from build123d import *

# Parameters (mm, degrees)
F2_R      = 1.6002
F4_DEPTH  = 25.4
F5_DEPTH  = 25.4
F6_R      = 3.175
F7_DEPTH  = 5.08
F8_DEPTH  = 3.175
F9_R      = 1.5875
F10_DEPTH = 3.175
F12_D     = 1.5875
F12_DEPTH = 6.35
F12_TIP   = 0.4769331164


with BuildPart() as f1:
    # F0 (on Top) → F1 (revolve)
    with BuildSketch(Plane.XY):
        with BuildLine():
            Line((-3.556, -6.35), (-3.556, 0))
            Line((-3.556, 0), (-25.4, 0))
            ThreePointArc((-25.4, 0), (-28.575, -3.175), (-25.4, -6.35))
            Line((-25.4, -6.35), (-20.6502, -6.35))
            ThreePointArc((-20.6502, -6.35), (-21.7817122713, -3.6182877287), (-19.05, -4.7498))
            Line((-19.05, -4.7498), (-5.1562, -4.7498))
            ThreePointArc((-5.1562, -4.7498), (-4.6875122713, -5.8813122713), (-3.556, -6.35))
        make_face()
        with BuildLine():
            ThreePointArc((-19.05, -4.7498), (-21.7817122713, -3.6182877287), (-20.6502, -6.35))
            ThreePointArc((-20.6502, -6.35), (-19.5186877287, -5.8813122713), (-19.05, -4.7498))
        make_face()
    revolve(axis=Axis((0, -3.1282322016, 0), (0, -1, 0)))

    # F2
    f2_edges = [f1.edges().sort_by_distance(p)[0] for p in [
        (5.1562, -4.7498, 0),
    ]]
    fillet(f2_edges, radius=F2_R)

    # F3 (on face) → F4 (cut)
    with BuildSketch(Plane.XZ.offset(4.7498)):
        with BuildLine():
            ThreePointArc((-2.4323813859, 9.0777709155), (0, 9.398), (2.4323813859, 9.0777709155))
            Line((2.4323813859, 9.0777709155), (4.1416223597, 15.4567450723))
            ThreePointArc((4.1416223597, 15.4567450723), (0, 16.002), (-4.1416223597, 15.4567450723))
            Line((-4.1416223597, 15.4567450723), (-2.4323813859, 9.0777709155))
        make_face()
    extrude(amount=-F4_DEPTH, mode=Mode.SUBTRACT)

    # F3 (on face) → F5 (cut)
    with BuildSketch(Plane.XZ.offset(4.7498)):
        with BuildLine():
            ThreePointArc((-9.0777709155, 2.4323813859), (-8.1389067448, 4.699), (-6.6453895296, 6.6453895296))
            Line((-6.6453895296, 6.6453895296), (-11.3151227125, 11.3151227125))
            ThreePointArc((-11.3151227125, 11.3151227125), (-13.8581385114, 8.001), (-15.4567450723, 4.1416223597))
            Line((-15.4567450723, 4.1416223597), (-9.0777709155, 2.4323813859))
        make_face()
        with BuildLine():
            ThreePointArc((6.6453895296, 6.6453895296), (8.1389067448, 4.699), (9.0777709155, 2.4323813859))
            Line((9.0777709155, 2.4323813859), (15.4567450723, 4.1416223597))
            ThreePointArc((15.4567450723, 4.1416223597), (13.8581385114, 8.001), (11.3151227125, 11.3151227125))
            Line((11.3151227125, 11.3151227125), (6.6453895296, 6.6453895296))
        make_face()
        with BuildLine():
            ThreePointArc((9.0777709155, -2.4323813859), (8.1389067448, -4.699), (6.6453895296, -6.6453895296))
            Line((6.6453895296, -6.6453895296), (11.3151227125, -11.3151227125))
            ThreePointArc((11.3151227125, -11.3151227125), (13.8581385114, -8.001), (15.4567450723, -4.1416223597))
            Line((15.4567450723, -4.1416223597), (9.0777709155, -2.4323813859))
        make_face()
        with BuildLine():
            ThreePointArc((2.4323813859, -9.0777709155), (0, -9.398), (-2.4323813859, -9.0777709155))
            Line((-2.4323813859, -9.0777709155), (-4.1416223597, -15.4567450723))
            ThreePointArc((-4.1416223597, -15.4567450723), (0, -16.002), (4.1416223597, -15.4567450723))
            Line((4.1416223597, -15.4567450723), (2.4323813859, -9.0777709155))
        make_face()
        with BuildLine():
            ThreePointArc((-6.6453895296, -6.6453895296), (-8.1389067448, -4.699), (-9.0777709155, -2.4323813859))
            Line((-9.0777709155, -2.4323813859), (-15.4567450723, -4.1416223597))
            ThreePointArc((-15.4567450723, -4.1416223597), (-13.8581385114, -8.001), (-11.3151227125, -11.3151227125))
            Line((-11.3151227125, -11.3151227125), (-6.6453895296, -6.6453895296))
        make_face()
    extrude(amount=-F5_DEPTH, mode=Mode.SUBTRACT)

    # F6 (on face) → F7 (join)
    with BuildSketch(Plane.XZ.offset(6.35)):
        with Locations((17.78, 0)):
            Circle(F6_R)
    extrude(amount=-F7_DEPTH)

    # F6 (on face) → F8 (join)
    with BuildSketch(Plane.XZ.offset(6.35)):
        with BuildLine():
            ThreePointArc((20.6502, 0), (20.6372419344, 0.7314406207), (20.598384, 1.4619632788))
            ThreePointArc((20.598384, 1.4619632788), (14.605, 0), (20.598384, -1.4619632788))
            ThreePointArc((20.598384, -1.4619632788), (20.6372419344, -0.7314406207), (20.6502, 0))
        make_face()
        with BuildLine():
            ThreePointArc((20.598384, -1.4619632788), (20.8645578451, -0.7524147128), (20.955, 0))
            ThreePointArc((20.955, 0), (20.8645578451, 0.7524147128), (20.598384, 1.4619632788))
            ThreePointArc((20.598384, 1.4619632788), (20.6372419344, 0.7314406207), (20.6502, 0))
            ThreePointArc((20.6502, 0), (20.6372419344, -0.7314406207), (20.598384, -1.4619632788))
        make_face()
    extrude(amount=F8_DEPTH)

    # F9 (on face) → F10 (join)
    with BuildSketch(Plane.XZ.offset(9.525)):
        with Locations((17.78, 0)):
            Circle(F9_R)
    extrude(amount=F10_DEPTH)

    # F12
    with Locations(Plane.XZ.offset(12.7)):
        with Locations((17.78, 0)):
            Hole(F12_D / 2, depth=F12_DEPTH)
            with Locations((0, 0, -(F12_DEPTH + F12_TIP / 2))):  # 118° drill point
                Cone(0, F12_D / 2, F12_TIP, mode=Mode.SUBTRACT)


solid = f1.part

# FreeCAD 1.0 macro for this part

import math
import FreeCAD as App
import Part
import Sketcher

V = App.Vector
Q = App.Units.Quantity


def edges_at(feature, points):
    """Names of the edges that pass closest to the given points."""
    edges = feature.Shape.Edges
    near = lambda p: min(range(len(edges)), key=lambda i: edges[i].distToShape(Part.Vertex(*p))[0])
    return sorted({f"Edge{near(p) + 1}" for p in points})

doc = App.newDocument("Part")
body = doc.addObject("PartDesign::Body", "Body")

sketch1 = doc.addObject("Sketcher::SketchObject", "Sketch")
body.addObject(sketch1)
sketch1.AttachmentSupport = (doc.XY_Plane, [""])
sketch1.MapMode = "FlatFace"
sketch1.addGeometry([
    Part.LineSegment(V(-3.6, -6.3, 0), V(-3.6, 0, 0)),
    Part.LineSegment(V(-3.6, 0, 0), V(-25.4, 0, 0)),
    Part.ArcOfCircle(Part.Circle(V(-25.4, -3.2, 0), V(0, 0, 1), 3.2), math.radians(90), math.radians(270)),
    Part.LineSegment(V(-25.4, -6.3, 0), V(-20.7, -6.3, 0)),
    Part.ArcOfCircle(Part.Circle(V(-20.7, -4.7, 0), V(0, 0, 1), 1.6), math.radians(-90), math.radians(0)),
    Part.LineSegment(V(-19.1, -4.7, 0), V(-5.2, -4.7, 0)),
    Part.ArcOfCircle(Part.Circle(V(-3.6, -4.7, 0), V(0, 0, 1), 1.6), math.radians(180), math.radians(270)),
], False)
sketch1.addConstraint([
    Sketcher.Constraint("Coincident", 0, 2, 1, 1),
    Sketcher.Constraint("Tangent", 1, 2, 2, 1),
    Sketcher.Constraint("Tangent", 2, 2, 3, 1),
    Sketcher.Constraint("Tangent", 3, 2, 4, 1),
    Sketcher.Constraint("Coincident", 4, 2, 5, 1),
    Sketcher.Constraint("Coincident", 5, 2, 6, 1),
    Sketcher.Constraint("Coincident", 6, 2, 0, 1),
    Sketcher.Constraint("Vertical", 0),
    Sketcher.Constraint("Horizontal", 1),
    Sketcher.Constraint("Horizontal", 3),
    Sketcher.Constraint("Horizontal", 5),
    Sketcher.Constraint("Equal", 4, 6),
    Sketcher.Constraint("PointOnObject", 0, 2, -1),
    Sketcher.Constraint("Horizontal", 4, 3, 6, 3),
    Sketcher.Constraint("Horizontal", 6, 3, 4, 2),
    Sketcher.Constraint("Vertical", 6, 3, 0, 2),
    Sketcher.Constraint("DistanceX", 2, 3, -1, 1, Q("1 in")),
    Sketcher.Constraint("Radius", 2, Q("0.125 in")),
    Sketcher.Constraint("Radius", 4, Q("0.063 in")),
    Sketcher.Constraint("DistanceX", 1, 2, 1, 1, Q("0.86 in")),
    Sketcher.Constraint("DistanceX", 3, 1, 3, 2, Q("0.187 in")),
])
revolution = doc.addObject("PartDesign::Revolution", "Revolution")
body.addObject(revolution)
revolution.Profile = sketch1
revolution.ReferenceAxis = (sketch1, ["V_Axis"])
revolution.Angle = 360
doc.recompute()

fillet = doc.addObject("PartDesign::Fillet", "Fillet")
body.addObject(fillet)
fillet.Base = (revolution, edges_at(revolution, [(5.156, -4.75, 0)]))
fillet.Radius = Q("0.063 in")

sketch2 = doc.addObject("Sketcher::SketchObject", "Sketch001")
body.addObject(sketch2)
sketch2.AttachmentSupport = (doc.XZ_Plane, [""])
sketch2.MapMode = "FlatFace"
sketch2.AttachmentOffset = App.Placement(V(0, 0, 0.187 * 25.4), App.Rotation())
sketch2.addGeometry([
    Part.ArcOfCircle(Part.Circle(V(0, 0, 0), V(0, 0, 1), 9.4), math.radians(75), math.radians(105)),
    Part.LineSegment(V(2.4, 9.1, 0), V(4.1, 15.5, 0)),
    Part.ArcOfCircle(Part.Circle(V(0, 0, 0), V(0, 0, 1), 16), math.radians(75), math.radians(105)),
    Part.LineSegment(V(-4.1, 15.5, 0), V(-2.4, 9.1, 0)),
], False)
sketch2.addConstraint([
    Sketcher.Constraint("Coincident", 0, 1, 1, 1),
    Sketcher.Constraint("Coincident", 1, 2, 2, 1),
    Sketcher.Constraint("Coincident", 2, 2, 3, 1),
    Sketcher.Constraint("Coincident", 3, 2, 0, 2),
    Sketcher.Constraint("Coincident", 0, 3, -1, 1),
    Sketcher.Constraint("Coincident", 2, 3, -1, 1),
    Sketcher.Constraint("Horizontal", 1, 2, 2, 2),
    Sketcher.Constraint("Horizontal", 0, 1, 3, 2),
    Sketcher.Constraint("Radius", 0, Q("0.37 in")),
    Sketcher.Constraint("Radius", 2, Q("0.63 in")),
    Sketcher.Constraint("Angle", 1, Q("75 deg")),
    Sketcher.Constraint("DistanceX", -1, 1, 0, 1, Q("2.432381 mm")),
])
pocket1 = doc.addObject("PartDesign::Pocket", "Pocket")
body.addObject(pocket1)
pocket1.Profile = sketch2
pocket1.Length = Q("1 in")

sketch3 = doc.addObject("Sketcher::SketchObject", "Sketch002")
body.addObject(sketch3)
sketch3.AttachmentSupport = (doc.XZ_Plane, [""])
sketch3.MapMode = "FlatFace"
sketch3.AttachmentOffset = App.Placement(V(0, 0, 0.187 * 25.4), App.Rotation())
sketch3.addGeometry([
    Part.ArcOfCircle(Part.Circle(V(0, 0, 0), V(0, 0, 1), 9.4), math.radians(135), math.radians(165)),
    Part.LineSegment(V(-6.6, 6.6, 0), V(-11.3, 11.3, 0)),
    Part.ArcOfCircle(Part.Circle(V(0, 0, 0), V(0, 0, 1), 16), math.radians(135), math.radians(165)),
    Part.LineSegment(V(-15.5, 4.1, 0), V(-9.1, 2.4, 0)),
    Part.ArcOfCircle(Part.Circle(V(0, 0, 0), V(0, 0, 1), 9.4), math.radians(15), math.radians(45)),
    Part.LineSegment(V(9.1, 2.4, 0), V(15.5, 4.1, 0)),
    Part.ArcOfCircle(Part.Circle(V(0, 0, 0), V(0, 0, 1), 16), math.radians(15), math.radians(45)),
    Part.LineSegment(V(11.3, 11.3, 0), V(6.6, 6.6, 0)),
    Part.ArcOfCircle(Part.Circle(V(0, 0, 0), V(0, 0, 1), 9.4), math.radians(-45), math.radians(-15)),
    Part.LineSegment(V(6.6, -6.6, 0), V(11.3, -11.3, 0)),
    Part.ArcOfCircle(Part.Circle(V(0, 0, 0), V(0, 0, 1), 16), math.radians(-45), math.radians(-15)),
    Part.LineSegment(V(15.5, -4.1, 0), V(9.1, -2.4, 0)),
    Part.ArcOfCircle(Part.Circle(V(0, 0, 0), V(0, 0, 1), 9.4), math.radians(-105), math.radians(-75)),
    Part.LineSegment(V(-2.4, -9.1, 0), V(-4.1, -15.5, 0)),
    Part.ArcOfCircle(Part.Circle(V(0, 0, 0), V(0, 0, 1), 16), math.radians(-105), math.radians(-75)),
    Part.LineSegment(V(4.1, -15.5, 0), V(2.4, -9.1, 0)),
    Part.ArcOfCircle(Part.Circle(V(0, 0, 0), V(0, 0, 1), 9.4), math.radians(-165), math.radians(-135)),
    Part.LineSegment(V(-9.1, -2.4, 0), V(-15.5, -4.1, 0)),
    Part.ArcOfCircle(Part.Circle(V(0, 0, 0), V(0, 0, 1), 16), math.radians(-165), math.radians(-135)),
    Part.LineSegment(V(-11.3, -11.3, 0), V(-6.6, -6.6, 0)),
], False)
sketch3.addConstraint([
    Sketcher.Constraint("Coincident", 0, 1, 1, 1),
    Sketcher.Constraint("Coincident", 1, 2, 2, 1),
    Sketcher.Constraint("Coincident", 2, 2, 3, 1),
    Sketcher.Constraint("Coincident", 3, 2, 0, 2),
    Sketcher.Constraint("Coincident", 4, 1, 5, 1),
    Sketcher.Constraint("Coincident", 5, 2, 6, 1),
    Sketcher.Constraint("Coincident", 6, 2, 7, 1),
    Sketcher.Constraint("Coincident", 7, 2, 4, 2),
    Sketcher.Constraint("Coincident", 8, 1, 9, 1),
    Sketcher.Constraint("Coincident", 9, 2, 10, 1),
    Sketcher.Constraint("Coincident", 10, 2, 11, 1),
    Sketcher.Constraint("Coincident", 11, 2, 8, 2),
    Sketcher.Constraint("Coincident", 12, 1, 13, 1),
    Sketcher.Constraint("Coincident", 13, 2, 14, 1),
    Sketcher.Constraint("Coincident", 14, 2, 15, 1),
    Sketcher.Constraint("Coincident", 15, 2, 12, 2),
    Sketcher.Constraint("Coincident", 16, 1, 17, 1),
    Sketcher.Constraint("Coincident", 17, 2, 18, 1),
    Sketcher.Constraint("Coincident", 18, 2, 19, 1),
    Sketcher.Constraint("Coincident", 19, 2, 16, 2),
    Sketcher.Constraint("Coincident", 0, 3, -1, 1),
    Sketcher.Constraint("Coincident", 2, 3, -1, 1),
    Sketcher.Constraint("Coincident", 4, 3, -1, 1),
    Sketcher.Constraint("Coincident", 6, 3, -1, 1),
    Sketcher.Constraint("Coincident", 8, 3, -1, 1),
    Sketcher.Constraint("Coincident", 10, 3, -1, 1),
    Sketcher.Constraint("Coincident", 12, 3, -1, 1),
    Sketcher.Constraint("Coincident", 14, 3, -1, 1),
    Sketcher.Constraint("Coincident", 16, 3, -1, 1),
    Sketcher.Constraint("Coincident", 18, 3, -1, 1),
    Sketcher.Constraint("Equal", 0, 4),
    Sketcher.Constraint("Equal", 2, 6),
    Sketcher.Constraint("Equal", 4, 8),
    Sketcher.Constraint("Equal", 6, 10),
    Sketcher.Constraint("Equal", 8, 12),
    Sketcher.Constraint("Equal", 10, 14),
    Sketcher.Constraint("Equal", 12, 16),
    Sketcher.Constraint("Equal", 14, 18),
    Sketcher.Constraint("Perpendicular", 1, 7),
    Sketcher.Constraint("Perpendicular", 7, 9),
    Sketcher.Constraint("Parallel", 3, 11),
    Sketcher.Constraint("Perpendicular", 11, 13),
    Sketcher.Constraint("Perpendicular", 5, 15),
    Sketcher.Constraint("Perpendicular", 15, 17),
    Sketcher.Constraint("Perpendicular", 9, 19),
    Sketcher.Constraint("Horizontal", 3, 2, 4, 1),
    Sketcher.Constraint("Horizontal", 2, 2, 5, 2),
    Sketcher.Constraint("Horizontal", 1, 2, 6, 2),
    Sketcher.Constraint("Horizontal", 0, 1, 7, 2),
    Sketcher.Constraint("Horizontal", 13, 2, 14, 2),
    Sketcher.Constraint("Horizontal", 11, 2, 16, 1),
    Sketcher.Constraint("Horizontal", 9, 2, 18, 2),
    Sketcher.Constraint("Vertical", 7, 2, 8, 1),
    Sketcher.Constraint("Vertical", 5, 2, 10, 2),
    Sketcher.Constraint("Radius", 0, Q("0.37 in")),
    Sketcher.Constraint("Radius", 2, Q("0.63 in")),
    Sketcher.Constraint("Angle", 3, Q("-15 deg")),
    Sketcher.Constraint("DistanceY", 2, 2, 1, 2, Q("7.1735 mm")),
    Sketcher.Constraint("DistanceX", 14, 2, 9, 2, Q("7.1735 mm")),
    Sketcher.Constraint("DistanceX", 0, 1, -1, 1, Q("6.64539 mm")),
])
pocket2 = doc.addObject("PartDesign::Pocket", "Pocket001")
body.addObject(pocket2)
pocket2.Profile = sketch3
pocket2.Length = Q("1 in")

sketch4 = doc.addObject("Sketcher::SketchObject", "Sketch003")
body.addObject(sketch4)
sketch4.AttachmentSupport = (doc.XZ_Plane, [""])
sketch4.MapMode = "FlatFace"
sketch4.AttachmentOffset = App.Placement(V(0, 0, 0.25 * 25.4), App.Rotation())
sketch4.addGeometry(Part.Circle(V(17.8, 0, 0), V(0, 0, 1), 3.2), False)
sketch4.addConstraint([
    Sketcher.Constraint("PointOnObject", 0, 3, -1),
    Sketcher.Constraint("Diameter", 0, Q("0.25 in")),
    Sketcher.Constraint("DistanceX", -1, 1, 0, 3, Q("0.7 in")),
])
pad1 = doc.addObject("PartDesign::Pad", "Pad")
body.addObject(pad1)
pad1.Profile = sketch4
pad1.Length = Q("0.2 in")
pad1.Reversed = True

sketch5 = doc.addObject("Sketcher::SketchObject", "Sketch004")
body.addObject(sketch5)
sketch5.AttachmentSupport = (doc.XZ_Plane, [""])
sketch5.MapMode = "FlatFace"
sketch5.AttachmentOffset = App.Placement(V(0, 0, 0.25 * 25.4), App.Rotation())
sketch5.addGeometry([
    Part.ArcOfCircle(Part.Circle(V(17.8, 0, 0), V(0, 0, 1), 3.2), math.radians(27), math.radians(333)),
    Part.ArcOfCircle(Part.Circle(V(17.8, 0, 0), V(0, 0, 1), 3.2), math.radians(-27), math.radians(0)),
    Part.ArcOfCircle(Part.Circle(V(17.8, 0, 0), V(0, 0, 1), 3.2), math.radians(0), math.radians(27)),
], False)
sketch5.addConstraint([
    Sketcher.Constraint("Tangent", 0, 2, 1, 1),
    Sketcher.Constraint("Tangent", 1, 2, 2, 1),
    Sketcher.Constraint("Tangent", 2, 2, 0, 1),
    Sketcher.Constraint("Symmetric", 0, 2, 2, 2, -1),
    Sketcher.Constraint("PointOnObject", 1, 2, -1),
    Sketcher.Constraint("Radius", 0, Q("0.125 in")),
    Sketcher.Constraint("DistanceX", -1, 1, 0, 3, Q("0.7 in")),
    Sketcher.Constraint("DistanceX", -1, 1, 0, 2, Q("20.598384 mm")),
])
pad2 = doc.addObject("PartDesign::Pad", "Pad001")
body.addObject(pad2)
pad2.Profile = sketch5
pad2.Length = Q("0.125 in")

sketch6 = doc.addObject("Sketcher::SketchObject", "Sketch005")
body.addObject(sketch6)
sketch6.AttachmentSupport = (doc.XZ_Plane, [""])
sketch6.MapMode = "FlatFace"
sketch6.AttachmentOffset = App.Placement(V(0, 0, 0.375 * 25.4), App.Rotation())
sketch6.addGeometry(Part.Circle(V(17.8, 0, 0), V(0, 0, 1), 1.6), False)
sketch6.addConstraint([
    Sketcher.Constraint("PointOnObject", 0, 3, -1),
    Sketcher.Constraint("Diameter", 0, Q("0.125 in")),
    Sketcher.Constraint("DistanceX", -1, 1, 0, 3, Q("0.7 in")),
])
pad3 = doc.addObject("PartDesign::Pad", "Pad002")
body.addObject(pad3)
pad3.Profile = sketch6
pad3.Length = Q("0.125 in")

sketch7 = doc.addObject("Sketcher::SketchObject", "Sketch006")
body.addObject(sketch7)
sketch7.AttachmentSupport = (doc.XZ_Plane, [""])
sketch7.MapMode = "FlatFace"
sketch7.AttachmentOffset = App.Placement(V(0, 0, 0.5 * 25.4), App.Rotation())
sketch7.addGeometry(Part.Circle(V(17.8, 0, 0), V(0, 0, 1), 0.8), False)
sketch7.addConstraint([
    Sketcher.Constraint("PointOnObject", 0, 3, -1),
    Sketcher.Constraint("Diameter", 0, Q("0.0625 in")),
    Sketcher.Constraint("DistanceX", -1, 1, 0, 3, Q("0.7 in")),
])
doc.recompute()
hole = doc.addObject("PartDesign::Hole", "Hole")
body.addObject(hole)
hole.Profile = sketch7
hole.ThreadType = "None"
hole.Diameter = Q("0.0625 in")
hole.DepthType = "Dimension"
hole.Depth = Q("0.25 in")
hole.DrillPoint = "Angled"
hole.DrillPointAngle = 118

doc.recompute()
